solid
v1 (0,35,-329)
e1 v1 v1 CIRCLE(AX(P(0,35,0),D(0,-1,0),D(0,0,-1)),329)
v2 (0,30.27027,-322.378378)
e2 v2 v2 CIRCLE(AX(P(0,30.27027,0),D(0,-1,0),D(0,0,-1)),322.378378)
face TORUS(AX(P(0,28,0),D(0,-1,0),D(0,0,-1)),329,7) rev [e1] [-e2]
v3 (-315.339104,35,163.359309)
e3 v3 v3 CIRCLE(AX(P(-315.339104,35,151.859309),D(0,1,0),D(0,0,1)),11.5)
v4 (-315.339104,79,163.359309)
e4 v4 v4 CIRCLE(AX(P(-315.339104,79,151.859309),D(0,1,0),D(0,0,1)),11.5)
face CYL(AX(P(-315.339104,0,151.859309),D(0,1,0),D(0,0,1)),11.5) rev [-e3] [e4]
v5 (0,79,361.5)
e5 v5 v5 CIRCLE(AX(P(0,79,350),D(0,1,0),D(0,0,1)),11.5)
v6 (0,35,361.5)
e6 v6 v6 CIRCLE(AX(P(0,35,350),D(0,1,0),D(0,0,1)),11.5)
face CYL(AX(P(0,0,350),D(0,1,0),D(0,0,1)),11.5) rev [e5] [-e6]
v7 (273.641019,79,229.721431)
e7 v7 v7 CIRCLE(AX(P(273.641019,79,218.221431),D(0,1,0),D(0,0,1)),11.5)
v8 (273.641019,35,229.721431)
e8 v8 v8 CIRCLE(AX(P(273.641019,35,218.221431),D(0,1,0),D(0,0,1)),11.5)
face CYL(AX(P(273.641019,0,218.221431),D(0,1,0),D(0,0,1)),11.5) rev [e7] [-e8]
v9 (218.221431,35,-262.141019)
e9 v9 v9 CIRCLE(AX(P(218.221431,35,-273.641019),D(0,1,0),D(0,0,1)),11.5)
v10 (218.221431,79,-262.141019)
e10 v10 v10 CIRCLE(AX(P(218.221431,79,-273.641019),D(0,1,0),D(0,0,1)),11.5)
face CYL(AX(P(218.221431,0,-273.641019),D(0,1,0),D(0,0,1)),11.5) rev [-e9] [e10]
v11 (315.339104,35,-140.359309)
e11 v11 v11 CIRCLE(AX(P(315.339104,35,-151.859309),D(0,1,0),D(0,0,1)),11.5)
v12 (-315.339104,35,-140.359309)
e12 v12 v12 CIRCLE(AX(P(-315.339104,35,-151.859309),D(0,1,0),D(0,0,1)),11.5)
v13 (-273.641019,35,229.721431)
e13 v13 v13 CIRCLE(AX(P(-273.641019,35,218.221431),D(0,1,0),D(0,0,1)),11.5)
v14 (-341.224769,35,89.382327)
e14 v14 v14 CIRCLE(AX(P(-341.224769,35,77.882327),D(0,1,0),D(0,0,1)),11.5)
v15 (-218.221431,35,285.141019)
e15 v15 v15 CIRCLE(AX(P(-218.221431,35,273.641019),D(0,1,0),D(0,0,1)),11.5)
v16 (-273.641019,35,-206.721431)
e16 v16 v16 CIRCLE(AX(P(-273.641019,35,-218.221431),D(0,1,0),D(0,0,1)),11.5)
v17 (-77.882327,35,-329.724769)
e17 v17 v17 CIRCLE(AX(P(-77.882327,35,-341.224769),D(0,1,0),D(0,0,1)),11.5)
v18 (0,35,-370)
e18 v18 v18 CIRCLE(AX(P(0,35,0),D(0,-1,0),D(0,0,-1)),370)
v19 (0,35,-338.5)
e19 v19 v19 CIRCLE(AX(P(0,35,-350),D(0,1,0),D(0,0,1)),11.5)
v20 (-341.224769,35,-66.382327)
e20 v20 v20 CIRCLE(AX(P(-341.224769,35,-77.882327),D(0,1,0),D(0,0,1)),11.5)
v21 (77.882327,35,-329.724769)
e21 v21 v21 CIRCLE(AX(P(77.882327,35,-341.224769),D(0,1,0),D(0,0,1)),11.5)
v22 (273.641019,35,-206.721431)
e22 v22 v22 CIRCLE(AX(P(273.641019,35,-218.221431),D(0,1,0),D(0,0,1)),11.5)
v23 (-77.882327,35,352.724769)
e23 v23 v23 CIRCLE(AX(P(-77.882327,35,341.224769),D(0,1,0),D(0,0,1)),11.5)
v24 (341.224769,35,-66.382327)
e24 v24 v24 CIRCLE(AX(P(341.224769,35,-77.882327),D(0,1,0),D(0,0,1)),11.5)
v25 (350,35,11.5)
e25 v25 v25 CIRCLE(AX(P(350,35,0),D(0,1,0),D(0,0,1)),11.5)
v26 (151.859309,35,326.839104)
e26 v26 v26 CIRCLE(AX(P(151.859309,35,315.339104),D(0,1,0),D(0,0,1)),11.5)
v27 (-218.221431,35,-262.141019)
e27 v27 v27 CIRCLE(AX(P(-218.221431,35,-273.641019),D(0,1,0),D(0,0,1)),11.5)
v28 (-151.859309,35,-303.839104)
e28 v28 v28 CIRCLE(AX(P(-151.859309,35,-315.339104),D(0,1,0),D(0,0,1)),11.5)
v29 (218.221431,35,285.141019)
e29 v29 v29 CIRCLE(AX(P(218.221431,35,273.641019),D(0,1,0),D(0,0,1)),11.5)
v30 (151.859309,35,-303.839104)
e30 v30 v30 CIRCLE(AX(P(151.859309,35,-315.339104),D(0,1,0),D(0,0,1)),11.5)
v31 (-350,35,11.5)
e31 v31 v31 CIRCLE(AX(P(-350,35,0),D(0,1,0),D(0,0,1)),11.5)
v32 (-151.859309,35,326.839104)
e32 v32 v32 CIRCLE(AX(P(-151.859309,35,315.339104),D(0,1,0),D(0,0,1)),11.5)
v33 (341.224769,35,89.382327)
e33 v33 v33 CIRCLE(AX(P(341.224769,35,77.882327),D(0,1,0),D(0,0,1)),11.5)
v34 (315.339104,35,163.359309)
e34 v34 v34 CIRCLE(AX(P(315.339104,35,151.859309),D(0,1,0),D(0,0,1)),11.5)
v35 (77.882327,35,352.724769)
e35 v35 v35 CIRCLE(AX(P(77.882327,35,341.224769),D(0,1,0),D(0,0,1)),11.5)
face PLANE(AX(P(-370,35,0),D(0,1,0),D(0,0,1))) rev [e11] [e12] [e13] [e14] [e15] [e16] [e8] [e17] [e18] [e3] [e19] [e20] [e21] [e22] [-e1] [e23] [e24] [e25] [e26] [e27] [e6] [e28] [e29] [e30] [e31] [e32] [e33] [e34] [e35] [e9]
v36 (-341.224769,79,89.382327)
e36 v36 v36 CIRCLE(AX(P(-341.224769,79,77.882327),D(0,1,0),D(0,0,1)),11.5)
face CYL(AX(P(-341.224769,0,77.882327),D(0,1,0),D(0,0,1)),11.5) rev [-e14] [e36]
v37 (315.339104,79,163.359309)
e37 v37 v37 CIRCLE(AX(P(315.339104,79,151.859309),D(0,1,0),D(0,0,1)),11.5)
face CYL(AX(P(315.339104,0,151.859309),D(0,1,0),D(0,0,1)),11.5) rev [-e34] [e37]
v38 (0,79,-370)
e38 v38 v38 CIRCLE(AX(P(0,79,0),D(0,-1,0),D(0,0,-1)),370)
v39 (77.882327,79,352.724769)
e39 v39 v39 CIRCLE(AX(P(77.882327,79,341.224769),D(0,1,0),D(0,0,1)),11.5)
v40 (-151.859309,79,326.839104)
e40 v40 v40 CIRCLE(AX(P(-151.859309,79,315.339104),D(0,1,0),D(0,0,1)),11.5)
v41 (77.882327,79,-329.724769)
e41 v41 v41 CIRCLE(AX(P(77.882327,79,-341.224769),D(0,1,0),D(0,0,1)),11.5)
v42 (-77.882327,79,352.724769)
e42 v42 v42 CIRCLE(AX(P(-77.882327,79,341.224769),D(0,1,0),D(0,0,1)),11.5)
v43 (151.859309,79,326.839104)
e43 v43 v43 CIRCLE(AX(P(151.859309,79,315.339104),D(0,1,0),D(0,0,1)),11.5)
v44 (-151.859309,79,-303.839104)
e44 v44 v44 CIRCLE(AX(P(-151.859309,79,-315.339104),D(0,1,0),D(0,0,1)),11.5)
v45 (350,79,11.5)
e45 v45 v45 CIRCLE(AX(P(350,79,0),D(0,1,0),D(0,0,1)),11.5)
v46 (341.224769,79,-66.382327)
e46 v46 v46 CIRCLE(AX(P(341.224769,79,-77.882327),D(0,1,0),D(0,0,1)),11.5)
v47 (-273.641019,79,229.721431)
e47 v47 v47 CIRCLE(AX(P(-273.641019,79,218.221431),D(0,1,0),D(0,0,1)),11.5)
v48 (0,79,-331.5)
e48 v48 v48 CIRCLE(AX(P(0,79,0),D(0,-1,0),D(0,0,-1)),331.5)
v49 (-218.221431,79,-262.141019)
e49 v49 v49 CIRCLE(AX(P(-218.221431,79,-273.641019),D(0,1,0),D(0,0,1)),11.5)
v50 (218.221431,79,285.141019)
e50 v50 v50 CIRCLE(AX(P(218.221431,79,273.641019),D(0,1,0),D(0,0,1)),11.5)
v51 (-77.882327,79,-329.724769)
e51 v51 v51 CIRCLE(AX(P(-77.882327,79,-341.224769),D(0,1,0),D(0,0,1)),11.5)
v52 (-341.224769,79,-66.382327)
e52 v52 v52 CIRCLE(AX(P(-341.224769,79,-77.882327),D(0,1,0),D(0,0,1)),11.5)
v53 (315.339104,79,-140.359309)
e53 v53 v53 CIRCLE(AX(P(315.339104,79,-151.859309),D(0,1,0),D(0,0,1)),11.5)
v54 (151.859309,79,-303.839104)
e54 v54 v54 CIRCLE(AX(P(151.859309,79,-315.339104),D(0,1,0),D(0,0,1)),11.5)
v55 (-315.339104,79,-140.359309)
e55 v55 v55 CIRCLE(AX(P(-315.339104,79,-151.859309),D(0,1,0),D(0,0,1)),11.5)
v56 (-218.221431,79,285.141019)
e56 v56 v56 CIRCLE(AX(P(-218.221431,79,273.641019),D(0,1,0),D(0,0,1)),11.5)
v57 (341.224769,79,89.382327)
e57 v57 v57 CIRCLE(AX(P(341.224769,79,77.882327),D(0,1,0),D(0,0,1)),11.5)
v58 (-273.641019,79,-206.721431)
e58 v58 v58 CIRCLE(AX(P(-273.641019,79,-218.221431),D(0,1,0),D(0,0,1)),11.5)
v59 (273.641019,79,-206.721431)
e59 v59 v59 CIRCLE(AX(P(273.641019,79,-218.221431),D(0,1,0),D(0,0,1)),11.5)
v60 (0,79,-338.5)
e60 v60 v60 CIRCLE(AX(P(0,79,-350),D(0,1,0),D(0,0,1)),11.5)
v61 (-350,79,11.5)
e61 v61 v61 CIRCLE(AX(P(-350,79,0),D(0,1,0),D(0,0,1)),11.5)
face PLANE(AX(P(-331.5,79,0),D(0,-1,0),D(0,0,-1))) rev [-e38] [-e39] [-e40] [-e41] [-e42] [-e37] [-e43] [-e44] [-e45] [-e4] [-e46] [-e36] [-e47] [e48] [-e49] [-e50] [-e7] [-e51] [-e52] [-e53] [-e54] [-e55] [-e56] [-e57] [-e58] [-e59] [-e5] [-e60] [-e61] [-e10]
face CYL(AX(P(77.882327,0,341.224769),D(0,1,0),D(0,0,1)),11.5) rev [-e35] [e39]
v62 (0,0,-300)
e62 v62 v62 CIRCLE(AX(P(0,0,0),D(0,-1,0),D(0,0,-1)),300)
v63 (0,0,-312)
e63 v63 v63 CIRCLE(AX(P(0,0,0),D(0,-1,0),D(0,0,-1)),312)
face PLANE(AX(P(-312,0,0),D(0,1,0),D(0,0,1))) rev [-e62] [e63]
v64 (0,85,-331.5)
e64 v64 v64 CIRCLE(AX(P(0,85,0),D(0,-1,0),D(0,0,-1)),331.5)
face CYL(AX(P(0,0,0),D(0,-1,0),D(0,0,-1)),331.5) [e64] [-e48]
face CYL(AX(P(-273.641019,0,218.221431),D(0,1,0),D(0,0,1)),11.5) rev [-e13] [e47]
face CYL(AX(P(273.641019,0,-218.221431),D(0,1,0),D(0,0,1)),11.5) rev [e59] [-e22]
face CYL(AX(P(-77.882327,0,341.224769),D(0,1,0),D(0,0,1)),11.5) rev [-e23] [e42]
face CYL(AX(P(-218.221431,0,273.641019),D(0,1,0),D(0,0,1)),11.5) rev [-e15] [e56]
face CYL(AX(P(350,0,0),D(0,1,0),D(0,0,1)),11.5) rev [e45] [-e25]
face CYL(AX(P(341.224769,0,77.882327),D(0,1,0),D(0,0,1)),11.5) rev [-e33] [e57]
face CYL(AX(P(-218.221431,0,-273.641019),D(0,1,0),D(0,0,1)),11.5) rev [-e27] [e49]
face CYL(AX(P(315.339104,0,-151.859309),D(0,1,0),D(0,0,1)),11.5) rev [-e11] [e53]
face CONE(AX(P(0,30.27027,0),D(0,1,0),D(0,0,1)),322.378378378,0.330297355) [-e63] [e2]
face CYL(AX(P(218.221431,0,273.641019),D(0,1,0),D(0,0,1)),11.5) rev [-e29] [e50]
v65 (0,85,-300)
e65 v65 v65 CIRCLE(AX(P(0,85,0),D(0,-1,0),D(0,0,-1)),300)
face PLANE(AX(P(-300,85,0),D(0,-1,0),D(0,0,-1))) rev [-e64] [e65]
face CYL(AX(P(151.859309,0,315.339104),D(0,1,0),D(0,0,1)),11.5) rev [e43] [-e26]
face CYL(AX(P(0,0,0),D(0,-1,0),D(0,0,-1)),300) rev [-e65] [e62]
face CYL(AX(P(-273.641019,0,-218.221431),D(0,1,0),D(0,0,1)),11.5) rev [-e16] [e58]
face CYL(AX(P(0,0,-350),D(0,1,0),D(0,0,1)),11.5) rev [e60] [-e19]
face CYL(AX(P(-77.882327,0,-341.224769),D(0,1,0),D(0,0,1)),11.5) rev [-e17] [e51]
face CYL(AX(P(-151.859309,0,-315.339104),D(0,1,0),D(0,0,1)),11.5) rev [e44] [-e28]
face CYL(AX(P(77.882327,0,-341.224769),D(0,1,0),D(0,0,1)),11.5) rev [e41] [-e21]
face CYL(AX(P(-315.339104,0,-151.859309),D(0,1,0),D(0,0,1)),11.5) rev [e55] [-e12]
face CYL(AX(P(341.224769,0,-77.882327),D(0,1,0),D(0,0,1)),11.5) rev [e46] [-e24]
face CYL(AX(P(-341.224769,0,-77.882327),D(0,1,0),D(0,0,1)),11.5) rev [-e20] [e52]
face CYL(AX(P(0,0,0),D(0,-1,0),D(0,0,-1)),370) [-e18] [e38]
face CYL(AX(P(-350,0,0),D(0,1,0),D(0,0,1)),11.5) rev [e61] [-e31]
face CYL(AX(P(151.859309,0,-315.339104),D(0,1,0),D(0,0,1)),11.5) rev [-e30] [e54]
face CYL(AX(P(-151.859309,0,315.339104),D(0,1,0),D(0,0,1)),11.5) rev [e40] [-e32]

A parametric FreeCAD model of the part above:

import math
import FreeCAD as App
import Part
import Sketcher

doc = App.newDocument("Part")
body = doc.addObject("PartDesign::Body", "Body")

sketch1 = doc.addObject("Sketcher::SketchObject", "Sketch")
body.addObject(sketch1)
sketch1.AttachmentSupport = (doc.XY_Plane, [""])
sketch1.MapMode = "FlatFace"
sketch1.addGeometry([
    Part.LineSegment(App.Vector(-300, 0, 0), App.Vector(-300, 35, 0)),
    Part.LineSegment(App.Vector(-300, 35, 0), App.Vector(0, 35, 0)),
    Part.LineSegment(App.Vector(0, 35, 0), App.Vector(0, 75, 0)),
    Part.LineSegment(App.Vector(0, 75, 0), App.Vector(-300, 75, 0)),
    Part.LineSegment(App.Vector(-300, 75, 0), App.Vector(-300, 85, 0)),
    Part.LineSegment(App.Vector(-300, 85, 0), App.Vector(-332, 85, 0)),
    Part.LineSegment(App.Vector(-332, 85, 0), App.Vector(-332, 79, 0)),
    Part.LineSegment(App.Vector(-332, 79, 0), App.Vector(-370, 79, 0)),
    Part.LineSegment(App.Vector(-370, 79, 0), App.Vector(-370, 35, 0)),
    Part.LineSegment(App.Vector(-370, 35, 0), App.Vector(-329, 35, 0)),
    Part.ArcOfCircle(Part.Circle(App.Vector(-329, 28, 0), App.Vector(0, 0, 1), 7), math.radians(19), math.radians(90)),
    Part.LineSegment(App.Vector(-322, 30, 0), App.Vector(-312, 0, 0)),
    Part.LineSegment(App.Vector(-312, 0, 0), App.Vector(-300, 0, 0)),
], False)
sketch1.addConstraint([
    Sketcher.Constraint("Coincident", 0, 2, 1, 1),
    Sketcher.Constraint("Coincident", 1, 2, 2, 1),
    Sketcher.Constraint("Coincident", 2, 2, 3, 1),
    Sketcher.Constraint("Coincident", 3, 2, 4, 1),
    Sketcher.Constraint("Coincident", 4, 2, 5, 1),
    Sketcher.Constraint("Coincident", 5, 2, 6, 1),
    Sketcher.Constraint("Coincident", 6, 2, 7, 1),
    Sketcher.Constraint("Coincident", 7, 2, 8, 1),
    Sketcher.Constraint("Coincident", 8, 2, 9, 1),
    Sketcher.Constraint("Tangent", 9, 2, 10, 2),
    Sketcher.Constraint("Tangent", 10, 1, 11, 1),
    Sketcher.Constraint("Coincident", 11, 2, 12, 1),
    Sketcher.Constraint("Coincident", 12, 2, 0, 1),
    Sketcher.Constraint("Vertical", 0),
    Sketcher.Constraint("Horizontal", 1),
    Sketcher.Constraint("Vertical", 2),
    Sketcher.Constraint("Horizontal", 3),
    Sketcher.Constraint("Vertical", 4),
    Sketcher.Constraint("Horizontal", 5),
    Sketcher.Constraint("Vertical", 6),
    Sketcher.Constraint("Horizontal", 7),
    Sketcher.Constraint("Vertical", 8),
    Sketcher.Constraint("Horizontal", 9),
    Sketcher.Constraint("Horizontal", 12),
    Sketcher.Constraint("PointOnObject", 1, 2, -2),
    Sketcher.Constraint("PointOnObject", 11, 2, -1),
    Sketcher.Constraint("Horizontal", 1, 2, 8, 2),
    Sketcher.Constraint("Vertical", 0, 2, 3, 2),
    Sketcher.Constraint("Radius", 10, 7.0),
    Sketcher.Constraint("DistanceX", 1, 1, 1, 2, 300.0),
    Sketcher.Constraint("DistanceX", 9, 1, 9, 2, 41.0),
    Sketcher.Constraint("DistanceX", 12, 1, 12, 2, 12.0),
    Sketcher.Constraint("DistanceY", 0, 1, 0, 2, 35.0),
    Sketcher.Constraint("DistanceY", 2, 1, 2, 2, 40.0),
    Sketcher.Constraint("DistanceY", 4, 1, 4, 2, 10.0),
    Sketcher.Constraint("DistanceY", 6, 2, 6, 1, 6.0),
    Sketcher.Constraint("Distance", 11, 32.0),
    Sketcher.Constraint("DistanceX", 5, 2, 5, 1, 31.5),
])
revolution = doc.addObject("PartDesign::Revolution", "Revolution")
body.addObject(revolution)
revolution.Profile = sketch1
revolution.ReferenceAxis = (sketch1, ["V_Axis"])
revolution.Angle = 360

sketch2 = doc.addObject("Sketcher::SketchObject", "Sketch001")
body.addObject(sketch2)
sketch2.AttachmentSupport = (doc.XZ_Plane, [""])
sketch2.MapMode = "FlatFace"
sketch2.AttachmentOffset = App.Placement(App.Vector(0, 0, -79), App.Rotation())
sketch2.addGeometry([
    Part.Circle(App.Vector(0, -350, 0), App.Vector(0, 0, 1), 12),
    Part.Circle(App.Vector(78, -341, 0), App.Vector(0, 0, 1), 12),
    Part.Circle(App.Vector(152, -315, 0), App.Vector(0, 0, 1), 12),
    Part.Circle(App.Vector(218, -274, 0), App.Vector(0, 0, 1), 12),
    Part.Circle(App.Vector(274, -218, 0), App.Vector(0, 0, 1), 12),
    Part.Circle(App.Vector(315, -152, 0), App.Vector(0, 0, 1), 12),
    Part.Circle(App.Vector(341, -78, 0), App.Vector(0, 0, 1), 12),
    Part.Circle(App.Vector(350, 0, 0), App.Vector(0, 0, 1), 12),
    Part.Circle(App.Vector(341, 78, 0), App.Vector(0, 0, 1), 12),
    Part.Circle(App.Vector(315, 152, 0), App.Vector(0, 0, 1), 12),
    Part.Circle(App.Vector(274, 218, 0), App.Vector(0, 0, 1), 12),
    Part.Circle(App.Vector(218, 274, 0), App.Vector(0, 0, 1), 12),
    Part.Circle(App.Vector(152, 315, 0), App.Vector(0, 0, 1), 12),
    Part.Circle(App.Vector(78, 341, 0), App.Vector(0, 0, 1), 12),
    Part.Circle(App.Vector(0, 350, 0), App.Vector(0, 0, 1), 12),
    Part.Circle(App.Vector(-78, 341, 0), App.Vector(0, 0, 1), 12),
    Part.Circle(App.Vector(-152, 315, 0), App.Vector(0, 0, 1), 12),
    Part.Circle(App.Vector(-218, 274, 0), App.Vector(0, 0, 1), 12),
    Part.Circle(App.Vector(-274, 218, 0), App.Vector(0, 0, 1), 12),
    Part.Circle(App.Vector(-315, 152, 0), App.Vector(0, 0, 1), 12),
    Part.Circle(App.Vector(-341, 78, 0), App.Vector(0, 0, 1), 12),
    Part.Circle(App.Vector(-350, 0, 0), App.Vector(0, 0, 1), 12),
    Part.Circle(App.Vector(-341, -78, 0), App.Vector(0, 0, 1), 12),
    Part.Circle(App.Vector(-315, -152, 0), App.Vector(0, 0, 1), 12),
    Part.Circle(App.Vector(-274, -218, 0), App.Vector(0, 0, 1), 12),
    Part.Circle(App.Vector(-218, -274, 0), App.Vector(0, 0, 1), 12),
    Part.Circle(App.Vector(-152, -315, 0), App.Vector(0, 0, 1), 12),
    Part.Circle(App.Vector(-78, -341, 0), App.Vector(0, 0, 1), 12),
], False)
sketch2.addConstraint([
    Sketcher.Constraint("Equal", 0, 1),
    Sketcher.Constraint("Equal", 1, 2),
    Sketcher.Constraint("Equal", 2, 3),
    Sketcher.Constraint("Equal", 3, 4),
    Sketcher.Constraint("Equal", 4, 5),
    Sketcher.Constraint("Equal", 5, 6),
    Sketcher.Constraint("Equal", 6, 7),
    Sketcher.Constraint("Equal", 7, 8),
    Sketcher.Constraint("Equal", 8, 9),
    Sketcher.Constraint("Equal", 9, 10),
    Sketcher.Constraint("Equal", 10, 11),
    Sketcher.Constraint("Equal", 11, 12),
    Sketcher.Constraint("Equal", 12, 13),
    Sketcher.Constraint("Equal", 13, 14),
    Sketcher.Constraint("Equal", 14, 15),
    Sketcher.Constraint("Equal", 15, 16),
    Sketcher.Constraint("Equal", 16, 17),
    Sketcher.Constraint("Equal", 17, 18),
    Sketcher.Constraint("Equal", 18, 19),
    Sketcher.Constraint("Equal", 19, 20),
    Sketcher.Constraint("Equal", 20, 21),
    Sketcher.Constraint("Equal", 21, 22),
    Sketcher.Constraint("Equal", 22, 23),
    Sketcher.Constraint("Equal", 23, 24),
    Sketcher.Constraint("Equal", 24, 25),
    Sketcher.Constraint("Equal", 25, 26),
    Sketcher.Constraint("Equal", 26, 27),
    Sketcher.Constraint("Symmetric", 0, 3, 14, 3, -1, 1),
    Sketcher.Constraint("Symmetric", 1, 3, 15, 3, -1, 1),
    Sketcher.Constraint("Symmetric", 2, 3, 16, 3, -1, 1),
    Sketcher.Constraint("Symmetric", 3, 3, 17, 3, -1, 1),
    Sketcher.Constraint("Symmetric", 4, 3, 18, 3, -1, 1),
    Sketcher.Constraint("Symmetric", 5, 3, 19, 3, -1, 1),
    Sketcher.Constraint("Symmetric", 6, 3, 20, 3, -1, 1),
    Sketcher.Constraint("Symmetric", 7, 3, 21, 3, -1, 1),
    Sketcher.Constraint("Symmetric", 8, 3, 22, 3, -1, 1),
    Sketcher.Constraint("Symmetric", 9, 3, 23, 3, -1, 1),
    Sketcher.Constraint("Symmetric", 10, 3, 24, 3, -1, 1),
    Sketcher.Constraint("Symmetric", 11, 3, 25, 3, -1, 1),
    Sketcher.Constraint("Symmetric", 12, 3, 26, 3, -1, 1),
    Sketcher.Constraint("Symmetric", 13, 3, 27, 3, -1, 1),
    Sketcher.Constraint("Symmetric", 13, 3, 15, 3, -2),
    Sketcher.Constraint("Symmetric", 12, 3, 16, 3, -2),
    Sketcher.Constraint("Symmetric", 11, 3, 17, 3, -2),
    Sketcher.Constraint("Symmetric", 10, 3, 18, 3, -2),
    Sketcher.Constraint("Symmetric", 9, 3, 19, 3, -2),
    Sketcher.Constraint("Symmetric", 8, 3, 20, 3, -2),
    Sketcher.Constraint("PointOnObject", 0, 3, -2),
    Sketcher.Constraint("PointOnObject", 7, 3, -1),
    Sketcher.Constraint("Diameter", 0, 23.0),
    Sketcher.Constraint("DistanceY", 0, 3, -1, 1, 350.0),
    Sketcher.Constraint("DistanceX", -1, 1, 7, 3, 350.0),
    Sketcher.Constraint("DistanceY", 1, 3, -1, 1, 341.224769),
    Sketcher.Constraint("DistanceX", -1, 1, 2, 3, 151.859309),
    Sketcher.Constraint("DistanceX", -1, 1, 3, 3, 218.221431),
    Sketcher.Constraint("DistanceY", 3, 3, -1, 1, 273.641019),
    Sketcher.Constraint("DistanceX", -1, 1, 4, 3, 273.641019),
    Sketcher.Constraint("DistanceY", 4, 3, -1, 1, 218.221431),
    Sketcher.Constraint("DistanceY", 5, 3, -1, 1, 151.859309),
    Sketcher.Constraint("DistanceX", -1, 1, 6, 3, 341.224769),
    Sketcher.Constraint("DistanceX", 1, 3, 2, 3, 73.976982),
    Sketcher.Constraint("DistanceY", 5, 3, 6, 3, 73.976982),
    Sketcher.Constraint("DistanceY", 2, 3, -1, 1, 315.339104),
    Sketcher.Constraint("DistanceX", -1, 1, 5, 3, 315.339104),
])
pocket1 = doc.addObject("PartDesign::Pocket", "Pocket")
body.addObject(pocket1)
pocket1.Profile = sketch2
pocket1.Type = "ThroughAll"
pocket1.Reversed = True

sketch3 = doc.addObject("Sketcher::SketchObject", "Sketch002")
body.addObject(sketch3)
sketch3.AttachmentSupport = (doc.XZ_Plane, [""])
sketch3.MapMode = "FlatFace"
sketch3.AttachmentOffset = App.Placement(App.Vector(0, 0, -75), App.Rotation())
sketch3.addGeometry(Part.Circle(App.Vector(0, 0, 0), App.Vector(0, 0, 1), 300), False)
sketch3.addConstraint([
    Sketcher.Constraint("Coincident", 0, 3, -1, 1),
    Sketcher.Constraint("Diameter", 0, 600.0),
])
pocket2 = doc.addObject("PartDesign::Pocket", "Pocket001")
body.addObject(pocket2)
pocket2.Profile = sketch3
pocket2.Type = "ThroughAll"
pocket2.Reversed = True

doc.recompute()
